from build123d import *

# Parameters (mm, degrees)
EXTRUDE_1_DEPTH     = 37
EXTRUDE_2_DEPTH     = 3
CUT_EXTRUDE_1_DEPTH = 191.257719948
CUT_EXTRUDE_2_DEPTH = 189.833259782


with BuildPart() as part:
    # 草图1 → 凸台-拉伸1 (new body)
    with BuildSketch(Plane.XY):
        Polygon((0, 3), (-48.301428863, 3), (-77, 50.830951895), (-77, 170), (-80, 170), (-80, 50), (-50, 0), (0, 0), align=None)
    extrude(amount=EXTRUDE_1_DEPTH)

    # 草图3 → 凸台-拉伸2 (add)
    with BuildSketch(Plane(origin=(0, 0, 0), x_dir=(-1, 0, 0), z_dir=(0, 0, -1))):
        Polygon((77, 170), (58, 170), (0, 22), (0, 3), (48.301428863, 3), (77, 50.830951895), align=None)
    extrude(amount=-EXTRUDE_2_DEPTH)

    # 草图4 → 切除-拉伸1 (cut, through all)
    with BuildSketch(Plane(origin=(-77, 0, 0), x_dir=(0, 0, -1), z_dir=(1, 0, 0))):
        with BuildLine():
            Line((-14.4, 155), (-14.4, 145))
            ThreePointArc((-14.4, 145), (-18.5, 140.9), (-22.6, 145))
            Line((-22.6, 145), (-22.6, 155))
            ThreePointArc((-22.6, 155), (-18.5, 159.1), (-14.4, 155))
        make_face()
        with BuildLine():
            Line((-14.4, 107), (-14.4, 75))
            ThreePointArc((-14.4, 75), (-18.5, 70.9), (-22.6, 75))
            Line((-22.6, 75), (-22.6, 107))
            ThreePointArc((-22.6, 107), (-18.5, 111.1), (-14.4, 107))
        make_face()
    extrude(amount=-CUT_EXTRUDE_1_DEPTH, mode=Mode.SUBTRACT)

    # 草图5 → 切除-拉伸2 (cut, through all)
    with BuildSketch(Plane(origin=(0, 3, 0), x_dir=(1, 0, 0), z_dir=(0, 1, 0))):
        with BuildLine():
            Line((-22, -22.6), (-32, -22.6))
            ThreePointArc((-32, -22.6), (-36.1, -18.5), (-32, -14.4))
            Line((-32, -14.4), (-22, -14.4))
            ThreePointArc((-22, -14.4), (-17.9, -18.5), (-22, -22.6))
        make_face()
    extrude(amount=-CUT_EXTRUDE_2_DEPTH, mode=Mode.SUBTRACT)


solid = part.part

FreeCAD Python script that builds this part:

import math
import FreeCAD as App
import Part
import Sketcher
from FreeCAD import Vector
Q = App.Units.Quantity


def add_polygon(sketch, points):
    """Adds a closed chain of lines whose ends are joined by coincident constraints."""
    first, n = sketch.GeometryCount, len(points)
    for a, b in zip(points, points[1:] + points[:1]):
        sketch.addGeometry(Part.LineSegment(App.Vector(*a, 0), App.Vector(*b, 0)), False)
    for i in range(n):
        sketch.addConstraint(Sketcher.Constraint("Coincident", first + i, 2, first + (i + 1) % n, 1))

doc = App.newDocument("Part")
body = doc.addObject("PartDesign::Body", "Body")

sketch1 = body.newObject("Sketcher::SketchObject", "Sketch")
sketch1.AttachmentSupport = (doc.getObject("XY_Plane"), [""])
sketch1.MapMode = "FlatFace"
add_polygon(sketch1, [(0, 3), (-48.301429, 3), (-77, 50.830952), (-77, 170), (-80, 170), (-80, 50), (-50, 0), (0, 0)])
sketch1.addConstraint([
    Sketcher.Constraint("Horizontal", 0),
    Sketcher.Constraint("Vertical", 2),
    Sketcher.Constraint("Horizontal", 3),
    Sketcher.Constraint("Vertical", 4),
    Sketcher.Constraint("Horizontal", 6),
    Sketcher.Constraint("Vertical", 7),
    Sketcher.Constraint("Coincident", 6, 2, -1, 1),
    Sketcher.Constraint("Parallel", 1, 5),
    Sketcher.Constraint("Equal", 3, 7),
    Sketcher.Constraint("DistanceX", 3, 2, 3, 1, Q("3 mm")),
    Sketcher.Constraint("DistanceX", 6, 1, 6, 2, Q("50 mm")),
    Sketcher.Constraint("DistanceY", 4, 2, 4, 1, Q("120 mm")),
    Sketcher.Constraint("DistanceX", 1, 2, -1, 1, Q("77 mm")),
    Sketcher.Constraint("DistanceY", -1, 1, 2, 2, Q("170 mm")),
    Sketcher.Constraint("DistanceX", 0, 2, 0, 1, Q("48.301429 mm")),
])
pad1 = body.newObject("PartDesign::Pad", "Pad")
pad1.Profile = sketch1
pad1.Length = 37

sketch2 = body.newObject("Sketcher::SketchObject", "Sketch001")
sketch2.AttachmentSupport = (doc.getObject("XY_Plane"), [""])
sketch2.MapMode = "FlatFace"
add_polygon(sketch2, [(-77, 170), (-58, 170), (0, 22), (0, 3), (-48.301429, 3), (-77, 50.830952)])
sketch2.addConstraint([
    Sketcher.Constraint("Horizontal", 0),
    Sketcher.Constraint("Vertical", 2),
    Sketcher.Constraint("Horizontal", 3),
    Sketcher.Constraint("Vertical", 5),
    Sketcher.Constraint("PointOnObject", 1, 2, -2),
    Sketcher.Constraint("Equal", 0, 2),
    Sketcher.Constraint("DistanceX", 0, 1, 0, 2, Q("19 mm")),
    Sketcher.Constraint("DistanceX", 0, 2, -1, 1, Q("58 mm")),
    Sketcher.Constraint("DistanceY", -1, 1, 0, 2, Q("170 mm")),
    Sketcher.Constraint("DistanceY", -1, 1, 1, 2, Q("22 mm")),
    Sketcher.Constraint("DistanceX", 3, 2, 3, 1, Q("48.301429 mm")),
    Sketcher.Constraint("DistanceY", 5, 1, 5, 2, Q("119.169048 mm")),
])
pad2 = body.newObject("PartDesign::Pad", "Pad001")
pad2.Profile = sketch2
pad2.Length = 3

sketch3 = body.newObject("Sketcher::SketchObject", "Sketch002")
sketch3.AttachmentSupport = (doc.getObject("YZ_Plane"), [""])
sketch3.MapMode = "FlatFace"
sketch3.AttachmentOffset = App.Placement(Vector(0, 0, -77), App.Rotation())
sketch3.addGeometry([
    Part.LineSegment(Vector(145, 14.4, 0), Vector(155, 14.4, 0)),
    Part.ArcOfCircle(Part.Circle(Vector(155, 18.5, 0), Vector(0, 0, 1), 4.1), math.radians(-90), math.radians(90)),
    Part.LineSegment(Vector(155, 22.6, 0), Vector(145, 22.6, 0)),
    Part.ArcOfCircle(Part.Circle(Vector(145, 18.5, 0), Vector(0, 0, 1), 4.1), math.radians(90), math.radians(270)),
    Part.LineSegment(Vector(75, 14.4, 0), Vector(107, 14.4, 0)),
    Part.ArcOfCircle(Part.Circle(Vector(107, 18.5, 0), Vector(0, 0, 1), 4.1), math.radians(-90), math.radians(90)),
    Part.LineSegment(Vector(107, 22.6, 0), Vector(75, 22.6, 0)),
    Part.ArcOfCircle(Part.Circle(Vector(75, 18.5, 0), Vector(0, 0, 1), 4.1), math.radians(90), math.radians(270)),
], False)
sketch3.addConstraint([
    Sketcher.Constraint("Tangent", 0, 2, 1, 1),
    Sketcher.Constraint("Tangent", 1, 2, 2, 1),
    Sketcher.Constraint("Tangent", 2, 2, 3, 1),
    Sketcher.Constraint("Tangent", 3, 2, 0, 1),
    Sketcher.Constraint("Tangent", 4, 2, 5, 1),
    Sketcher.Constraint("Tangent", 5, 2, 6, 1),
    Sketcher.Constraint("Tangent", 6, 2, 7, 1),
    Sketcher.Constraint("Tangent", 7, 2, 4, 1),
    Sketcher.Constraint("Horizontal", 0),
    Sketcher.Constraint("Horizontal", 2),
    Sketcher.Constraint("Horizontal", 4),
    Sketcher.Constraint("Horizontal", 6),
    Sketcher.Constraint("Equal", 3, 5),
    Sketcher.Constraint("Horizontal", 3, 3, 5, 3),
    Sketcher.Constraint("Radius", 1, Q("4.1 mm")),
    Sketcher.Constraint("DistanceX", 0, 1, 0, 2, Q("10 mm")),
    Sketcher.Constraint("DistanceX", 4, 1, 4, 2, Q("32 mm")),
    Sketcher.Constraint("DistanceX", -1, 1, 1, 3, Q("155 mm")),
    Sketcher.Constraint("DistanceX", -1, 1, 5, 3, Q("107 mm")),
    Sketcher.Constraint("DistanceY", -1, 1, 1, 3, Q("18.5 mm")),
])
pocket1 = body.newObject("PartDesign::Pocket", "Pocket")
pocket1.Profile = sketch3
pocket1.Type = "ThroughAll"

sketch4 = body.newObject("Sketcher::SketchObject", "Sketch003")
sketch4.AttachmentSupport = (doc.getObject("XZ_Plane"), [""])
sketch4.MapMode = "FlatFace"
sketch4.AttachmentOffset = App.Placement(Vector(0, 0, -3), App.Rotation())
sketch4.addGeometry([
    Part.LineSegment(Vector(-32, 22.6, 0), Vector(-22, 22.6, 0)),
    Part.ArcOfCircle(Part.Circle(Vector(-22, 18.5, 0), Vector(0, 0, 1), 4.1), math.radians(-90), math.radians(90)),
    Part.LineSegment(Vector(-22, 14.4, 0), Vector(-32, 14.4, 0)),
    Part.ArcOfCircle(Part.Circle(Vector(-32, 18.5, 0), Vector(0, 0, 1), 4.1), math.radians(90), math.radians(270)),
], False)
sketch4.addConstraint([
    Sketcher.Constraint("Tangent", 0, 2, 1, 2),
    Sketcher.Constraint("Tangent", 1, 1, 2, 1),
    Sketcher.Constraint("Tangent", 2, 2, 3, 2),
    Sketcher.Constraint("Tangent", 3, 1, 0, 1),
    Sketcher.Constraint("Horizontal", 0),
    Sketcher.Constraint("Horizontal", 2),
    Sketcher.Constraint("Radius", 1, Q("4.1 mm")),
    Sketcher.Constraint("DistanceX", 0, 1, 0, 2, Q("10 mm")),
    Sketcher.Constraint("DistanceX", 1, 3, -1, 1, Q("22 mm")),
    Sketcher.Constraint("DistanceY", -1, 1, 1, 3, Q("18.5 mm")),
])
pocket2 = body.newObject("PartDesign::Pocket", "Pocket001")
pocket2.Profile = sketch4
pocket2.Type = "ThroughAll"
pocket2.Reversed = True

doc.recompute()
